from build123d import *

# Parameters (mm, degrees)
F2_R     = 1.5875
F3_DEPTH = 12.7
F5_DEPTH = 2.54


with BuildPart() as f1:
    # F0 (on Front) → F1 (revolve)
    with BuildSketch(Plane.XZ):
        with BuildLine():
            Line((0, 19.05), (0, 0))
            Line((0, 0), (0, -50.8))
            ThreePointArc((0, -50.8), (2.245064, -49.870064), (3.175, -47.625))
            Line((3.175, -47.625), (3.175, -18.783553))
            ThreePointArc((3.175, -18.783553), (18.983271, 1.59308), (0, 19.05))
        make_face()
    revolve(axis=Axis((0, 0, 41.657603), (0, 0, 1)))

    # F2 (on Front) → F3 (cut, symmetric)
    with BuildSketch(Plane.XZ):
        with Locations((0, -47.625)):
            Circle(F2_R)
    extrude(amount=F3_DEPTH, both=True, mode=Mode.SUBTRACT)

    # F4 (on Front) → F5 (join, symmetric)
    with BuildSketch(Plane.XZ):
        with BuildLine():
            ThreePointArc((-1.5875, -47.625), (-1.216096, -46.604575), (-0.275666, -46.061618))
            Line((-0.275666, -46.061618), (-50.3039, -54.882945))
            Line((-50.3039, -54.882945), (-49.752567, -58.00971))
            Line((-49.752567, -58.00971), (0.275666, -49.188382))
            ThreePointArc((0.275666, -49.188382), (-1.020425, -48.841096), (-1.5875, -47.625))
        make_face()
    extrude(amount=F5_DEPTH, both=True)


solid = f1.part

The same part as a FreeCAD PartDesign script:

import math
import FreeCAD as App
import Part
import Sketcher
Q = App.Units.Quantity

doc = App.newDocument("Part")
body = doc.addObject("PartDesign::Body", "Body")

# Sketch on XZ plane
sketch1 = body.newObject("Sketcher::SketchObject", "Sketch")
sketch1.AttachmentSupport = (doc.getObject("XZ_Plane"), [""])
sketch1.MapMode = "FlatFace"
sketch1.addGeometry([
    Part.LineSegment(App.Vector(0, 19.05, 0), App.Vector(0, -50.8, 0)),
    Part.ArcOfCircle(Part.Circle(App.Vector(0, -47.625, 0), App.Vector(0, 0, 1), 3.175), math.radians(-89.999998), math.radians(-0.000002)),
    Part.LineSegment(App.Vector(3.175, -47.625, 0), App.Vector(3.175, -18.783553, 0)),
    Part.ArcOfCircle(Part.Circle(App.Vector(0, 0, 0), App.Vector(0, 0, 1), 19.05), math.radians(-80.405931), math.radians(89.999999)),
], False)
sketch1.addConstraint([
    Sketcher.Constraint("Coincident", 0, 2, 1, 1),
    Sketcher.Constraint("Tangent", 1, 2, 2, 1),
    Sketcher.Constraint("Coincident", 2, 2, 3, 1),
    Sketcher.Constraint("Coincident", 3, 2, 0, 1),
    Sketcher.Constraint("Vertical", 0),
    Sketcher.Constraint("Vertical", 2),
    Sketcher.Constraint("Coincident", 3, 3, -1, 1),
    Sketcher.Constraint("PointOnObject", 1, 3, -2),
    Sketcher.Constraint("PointOnObject", 0, 2, -2),
    Sketcher.Constraint("Radius", 3, Q("0.75 in")),
    Sketcher.Constraint("DistanceY", 0, 2, -1, 1, Q("2 in")),
    Sketcher.Constraint("Radius", 1, Q("0.125 in")),
])
revolution = body.newObject("PartDesign::Revolution", "Revolution")
revolution.Profile = sketch1
revolution.ReferenceAxis = (sketch1, ["V_Axis"])
revolution.Angle = 360

# Sketch on XZ plane
sketch2 = body.newObject("Sketcher::SketchObject", "Sketch001")
sketch2.AttachmentSupport = (doc.getObject("XZ_Plane"), [""])
sketch2.MapMode = "FlatFace"
sketch2.addGeometry(Part.Circle(App.Vector(0, -47.625, 0), App.Vector(0, 0, 1), 1.5875), False)
sketch2.addConstraint([
    Sketcher.Constraint("PointOnObject", 0, 3, -2),
    Sketcher.Constraint("Diameter", 0, Q("0.125 in")),
    Sketcher.Constraint("DistanceY", 0, 3, -1, 1, Q("1.875 in")),
])
pocket1 = body.newObject("PartDesign::Pocket", "Pocket")
pocket1.Profile = sketch2
pocket1.Length = Q("1 in")
pocket1.Midplane = True

# Sketch on XZ plane
sketch3 = body.newObject("Sketcher::SketchObject", "Sketch002")
sketch3.AttachmentSupport = (doc.getObject("XZ_Plane"), [""])
sketch3.MapMode = "FlatFace"
sketch3.addGeometry([
    Part.ArcOfCircle(Part.Circle(App.Vector(-0.000001, -47.624999, 0), App.Vector(0, 0, 1), 1.587499), math.radians(99.999944), math.radians(180.000024)),  # 0
    Part.LineSegment(App.Vector(-0.275666, -46.061618, 0), App.Vector(-50.3039, -54.882945, 0)),  # 1
    Part.LineSegment(App.Vector(-50.3039, -54.882945, 0), App.Vector(-49.752567, -58.00971, 0)),  # 2
    Part.LineSegment(App.Vector(-49.752567, -58.00971, 0), App.Vector(0.275666, -49.188382, 0)),  # 3
    Part.ArcOfCircle(Part.Circle(App.Vector(-0.000001, -47.625001, 0), App.Vector(0, 0, 1), 1.587499), math.radians(179.999981), math.radians(280.000016)),  # 4
], False)
sketch3.addConstraint([
    Sketcher.Constraint("Tangent", 0, 1, 1, 1),
    Sketcher.Constraint("Coincident", 1, 2, 2, 1),
    Sketcher.Constraint("Coincident", 2, 2, 3, 1),
    Sketcher.Constraint("Tangent", 3, 2, 4, 2),
    Sketcher.Constraint("Tangent", 4, 1, 0, 2),
    Sketcher.Constraint("Equal", 0, 4),
    Sketcher.Constraint("PointOnObject", 0, 3, -2),
    Sketcher.Constraint("Perpendicular", 1, 2),
    Sketcher.Constraint("Perpendicular", 2, 3),
    Sketcher.Constraint("Horizontal", 0, 3, 4, 1),
    Sketcher.Constraint("Distance", 1, Q("2 in")),
    Sketcher.Constraint("Angle", 1, Q("-170.000001 deg")),
    Sketcher.Constraint("Radius", 0, Q("0.0625 in")),
    Sketcher.Constraint("DistanceY", 0, 3, -1, 1, Q("1.875 in")),
])
pad1 = body.newObject("PartDesign::Pad", "Pad")
pad1.Profile = sketch3
pad1.Length = Q("0.2 in")
pad1.Midplane = True

doc.recompute()
